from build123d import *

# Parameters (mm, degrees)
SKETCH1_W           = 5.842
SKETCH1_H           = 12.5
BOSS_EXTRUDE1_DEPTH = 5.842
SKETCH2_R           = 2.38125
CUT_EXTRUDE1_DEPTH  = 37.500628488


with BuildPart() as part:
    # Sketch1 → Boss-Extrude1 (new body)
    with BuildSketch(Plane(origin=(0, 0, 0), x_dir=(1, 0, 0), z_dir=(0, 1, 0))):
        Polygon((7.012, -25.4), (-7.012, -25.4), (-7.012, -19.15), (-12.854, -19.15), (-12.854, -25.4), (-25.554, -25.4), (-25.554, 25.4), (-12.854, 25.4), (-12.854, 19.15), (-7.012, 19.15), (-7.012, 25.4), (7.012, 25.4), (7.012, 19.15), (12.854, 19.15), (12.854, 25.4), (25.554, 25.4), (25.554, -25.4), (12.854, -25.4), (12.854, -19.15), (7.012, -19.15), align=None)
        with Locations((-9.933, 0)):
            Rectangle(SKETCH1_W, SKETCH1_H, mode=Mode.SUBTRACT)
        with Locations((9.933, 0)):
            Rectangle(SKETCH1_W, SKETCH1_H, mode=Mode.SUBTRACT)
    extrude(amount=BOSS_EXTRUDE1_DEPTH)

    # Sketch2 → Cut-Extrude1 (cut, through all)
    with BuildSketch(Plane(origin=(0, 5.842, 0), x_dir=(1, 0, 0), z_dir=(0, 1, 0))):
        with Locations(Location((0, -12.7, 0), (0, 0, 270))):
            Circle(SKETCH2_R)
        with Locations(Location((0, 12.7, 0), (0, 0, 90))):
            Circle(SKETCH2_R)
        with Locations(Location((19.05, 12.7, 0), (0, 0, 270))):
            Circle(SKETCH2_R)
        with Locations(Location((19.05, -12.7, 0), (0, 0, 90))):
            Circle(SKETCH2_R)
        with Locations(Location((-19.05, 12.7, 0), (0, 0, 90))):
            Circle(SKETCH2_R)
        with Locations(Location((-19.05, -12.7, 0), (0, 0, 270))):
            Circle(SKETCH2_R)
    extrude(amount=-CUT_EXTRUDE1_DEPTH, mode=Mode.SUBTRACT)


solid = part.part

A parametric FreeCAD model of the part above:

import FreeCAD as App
import Part
import Sketcher
from FreeCAD import Vector
Q = App.Units.Quantity


def add_polygon(sketch, points):
    """Adds a closed chain of lines whose ends are joined by coincident constraints."""
    first, n = sketch.GeometryCount, len(points)
    for a, b in zip(points, points[1:] + points[:1]):
        sketch.addGeometry(Part.LineSegment(App.Vector(*a, 0), App.Vector(*b, 0)), False)
    for i in range(n):
        sketch.addConstraint(Sketcher.Constraint("Coincident", first + i, 2, first + (i + 1) % n, 1))

doc = App.newDocument("Part")
params = doc.addObject("Spreadsheet::Sheet", "Params")
for row, (alias, value) in enumerate([
    ("sketch1_height", "2 in"),
    ("sketch1_width", "0.5 in"),
    ("sketch1_width2", "0.23 in"),
    ("pad1_length", "0.23 in"),
    ("sketch2_diameter", "0.1875 in"),
], start=1):
    params.set(f"A{row}", alias)
    params.set(f"B{row}", "=" + value)
    params.setAlias(f"B{row}", alias)

body = doc.addObject("PartDesign::Body", "Body")

# Sketch on XZ plane
sketch1 = body.newObject("Sketcher::SketchObject", "Sketch")
sketch1.AttachmentSupport = (doc.getObject("XZ_Plane"), [""])
sketch1.MapMode = "FlatFace"
add_polygon(sketch1, [(-7, 25), (7, 25), (7, 19), (13, 19), (13, 25), (26, 25), (26, -25), (13, -25), (13, -19), (7, -19), (7, -25), (-7, -25), (-7, -19), (-13, -19), (-13, -25), (-26, -25), (-26, 25), (-13, 25), (-13, 19), (-7, 19)])  # lines 0-19
add_polygon(sketch1, [(7, 6), (7, -6), (13, -6), (13, 6)])  # lines 20-23
add_polygon(sketch1, [(-13, 6), (-13, -6), (-7, -6), (-7, 6)])  # lines 24-27
sketch1.addConstraint([
    Sketcher.Constraint("Horizontal", 0),
    Sketcher.Constraint("Vertical", 1),
    Sketcher.Constraint("Horizontal", 2),
    Sketcher.Constraint("Vertical", 3),
    Sketcher.Constraint("Horizontal", 4),
    Sketcher.Constraint("Vertical", 5),
    Sketcher.Constraint("Horizontal", 6),
    Sketcher.Constraint("Vertical", 7),
    Sketcher.Constraint("Horizontal", 8),
    Sketcher.Constraint("Vertical", 9),
    Sketcher.Constraint("Horizontal", 10),
    Sketcher.Constraint("Vertical", 11),
    Sketcher.Constraint("Horizontal", 12),
    Sketcher.Constraint("Vertical", 13),
    Sketcher.Constraint("Horizontal", 14),
    Sketcher.Constraint("Vertical", 15),
    Sketcher.Constraint("Horizontal", 16),
    Sketcher.Constraint("Vertical", 17),
    Sketcher.Constraint("Horizontal", 18),
    Sketcher.Constraint("Vertical", 19),
    Sketcher.Constraint("Vertical", 20),
    Sketcher.Constraint("Horizontal", 21),
    Sketcher.Constraint("Vertical", 22),
    Sketcher.Constraint("Horizontal", 23),
    Sketcher.Constraint("Vertical", 24),
    Sketcher.Constraint("Horizontal", 25),
    Sketcher.Constraint("Vertical", 26),
    Sketcher.Constraint("Horizontal", 27),
    Sketcher.Constraint("Symmetric", 0, 2, 10, 2, -1, 1),
    Sketcher.Constraint("Symmetric", 2, 2, 12, 2, -1, 1),
    Sketcher.Constraint("Symmetric", 4, 2, 14, 2, -1, 1),
    Sketcher.Constraint("Symmetric", 6, 2, 16, 2, -1, 1),
    Sketcher.Constraint("Symmetric", 8, 2, 18, 2, -1, 1),
    Sketcher.Constraint("Symmetric", 22, 2, 24, 2, -1, 1),
    Sketcher.Constraint("Symmetric", 20, 2, 26, 2, -1, 1),
    Sketcher.Constraint("Symmetric", 8, 2, 11, 2, -2),
    Sketcher.Constraint("Symmetric", 6, 2, 13, 2, -2),
    Sketcher.Constraint("Horizontal", 0, 2, 3, 2),
    Sketcher.Constraint("Horizontal", 21, 2, 24, 2),
    Sketcher.Constraint("Vertical", 9, 2, 20, 2),
    Sketcher.Constraint("Vertical", 7, 2, 21, 2),
    Sketcher.Constraint("DistanceY", 5, 2, 5, 1, Q("2 in")),
    Sketcher.Constraint("DistanceX", 4, 1, 4, 2, Q("0.5 in")),
    Sketcher.Constraint("DistanceX", 2, 1, 2, 2, Q("0.23 in")),
    Sketcher.Constraint("DistanceX", 0, 1, 0, 2, 14.024),
    Sketcher.Constraint("DistanceY", 1, 2, 1, 1, 6.25),
    Sketcher.Constraint("DistanceY", 20, 2, 20, 1, 12.5),
])
sketch1.setExpression("Constraints[69]", "Params.sketch1_height")
sketch1.setExpression("Constraints[70]", "Params.sketch1_width")
sketch1.setExpression("Constraints[71]", "Params.sketch1_width2")
pad1 = body.newObject("PartDesign::Pad", "Pad")
pad1.Profile = sketch1
pad1.setExpression("Length", "Params.pad1_length")
pad1.Reversed = True

# Sketch on XZ plane
sketch2 = body.newObject("Sketcher::SketchObject", "Sketch001")
sketch2.AttachmentSupport = (doc.getObject("XZ_Plane"), [""])
sketch2.MapMode = "FlatFace"
sketch2.AttachmentOffset = App.Placement(Vector(0, 0, -0.23 * 25.4), App.Rotation())
sketch2.addGeometry([
    Part.Circle(Vector(0, 12.7, 0), Vector(0, 0, 1), 2.4),  # 0
    Part.Circle(Vector(0, -12.7, 0), Vector(0, 0, 1), 2.4),  # 1
    Part.Circle(Vector(19.1, -12.7, 0), Vector(0, 0, 1), 2.4),  # 2
    Part.Circle(Vector(19.1, 12.7, 0), Vector(0, 0, 1), 2.4),  # 3
    Part.Circle(Vector(-19.1, -12.7, 0), Vector(0, 0, 1), 2.4),  # 4
    Part.Circle(Vector(-19.1, 12.7, 0), Vector(0, 0, 1), 2.4),  # 5
], False)
sketch2.addConstraint([
    Sketcher.Constraint("Equal", 0, 1),
    Sketcher.Constraint("Equal", 1, 2),
    Sketcher.Constraint("Equal", 2, 3),
    Sketcher.Constraint("Equal", 3, 4),
    Sketcher.Constraint("Equal", 4, 5),
    Sketcher.Constraint("Symmetric", 0, 3, 1, 3, -1, 1),
    Sketcher.Constraint("Symmetric", 3, 3, 4, 3, -1, 1),
    Sketcher.Constraint("Symmetric", 2, 3, 5, 3, -1, 1),
    Sketcher.Constraint("Symmetric", 2, 3, 4, 3, -2),
    Sketcher.Constraint("PointOnObject", 0, 3, -2),
    Sketcher.Constraint("Horizontal", 1, 3, 2, 3),
    Sketcher.Constraint("Diameter", 0, Q("0.1875 in")),
    Sketcher.Constraint("DistanceY", 1, 3, 0, 3, Q("1 in")),
    Sketcher.Constraint("DistanceX", 4, 3, 2, 3, Q("1.5 in")),
])
sketch2.setExpression("Constraints[11]", "Params.sketch2_diameter")
pocket1 = body.newObject("PartDesign::Pocket", "Pocket")
pocket1.Profile = sketch2
pocket1.Type = "ThroughAll"
pocket1.Reversed = True

doc.recompute()
